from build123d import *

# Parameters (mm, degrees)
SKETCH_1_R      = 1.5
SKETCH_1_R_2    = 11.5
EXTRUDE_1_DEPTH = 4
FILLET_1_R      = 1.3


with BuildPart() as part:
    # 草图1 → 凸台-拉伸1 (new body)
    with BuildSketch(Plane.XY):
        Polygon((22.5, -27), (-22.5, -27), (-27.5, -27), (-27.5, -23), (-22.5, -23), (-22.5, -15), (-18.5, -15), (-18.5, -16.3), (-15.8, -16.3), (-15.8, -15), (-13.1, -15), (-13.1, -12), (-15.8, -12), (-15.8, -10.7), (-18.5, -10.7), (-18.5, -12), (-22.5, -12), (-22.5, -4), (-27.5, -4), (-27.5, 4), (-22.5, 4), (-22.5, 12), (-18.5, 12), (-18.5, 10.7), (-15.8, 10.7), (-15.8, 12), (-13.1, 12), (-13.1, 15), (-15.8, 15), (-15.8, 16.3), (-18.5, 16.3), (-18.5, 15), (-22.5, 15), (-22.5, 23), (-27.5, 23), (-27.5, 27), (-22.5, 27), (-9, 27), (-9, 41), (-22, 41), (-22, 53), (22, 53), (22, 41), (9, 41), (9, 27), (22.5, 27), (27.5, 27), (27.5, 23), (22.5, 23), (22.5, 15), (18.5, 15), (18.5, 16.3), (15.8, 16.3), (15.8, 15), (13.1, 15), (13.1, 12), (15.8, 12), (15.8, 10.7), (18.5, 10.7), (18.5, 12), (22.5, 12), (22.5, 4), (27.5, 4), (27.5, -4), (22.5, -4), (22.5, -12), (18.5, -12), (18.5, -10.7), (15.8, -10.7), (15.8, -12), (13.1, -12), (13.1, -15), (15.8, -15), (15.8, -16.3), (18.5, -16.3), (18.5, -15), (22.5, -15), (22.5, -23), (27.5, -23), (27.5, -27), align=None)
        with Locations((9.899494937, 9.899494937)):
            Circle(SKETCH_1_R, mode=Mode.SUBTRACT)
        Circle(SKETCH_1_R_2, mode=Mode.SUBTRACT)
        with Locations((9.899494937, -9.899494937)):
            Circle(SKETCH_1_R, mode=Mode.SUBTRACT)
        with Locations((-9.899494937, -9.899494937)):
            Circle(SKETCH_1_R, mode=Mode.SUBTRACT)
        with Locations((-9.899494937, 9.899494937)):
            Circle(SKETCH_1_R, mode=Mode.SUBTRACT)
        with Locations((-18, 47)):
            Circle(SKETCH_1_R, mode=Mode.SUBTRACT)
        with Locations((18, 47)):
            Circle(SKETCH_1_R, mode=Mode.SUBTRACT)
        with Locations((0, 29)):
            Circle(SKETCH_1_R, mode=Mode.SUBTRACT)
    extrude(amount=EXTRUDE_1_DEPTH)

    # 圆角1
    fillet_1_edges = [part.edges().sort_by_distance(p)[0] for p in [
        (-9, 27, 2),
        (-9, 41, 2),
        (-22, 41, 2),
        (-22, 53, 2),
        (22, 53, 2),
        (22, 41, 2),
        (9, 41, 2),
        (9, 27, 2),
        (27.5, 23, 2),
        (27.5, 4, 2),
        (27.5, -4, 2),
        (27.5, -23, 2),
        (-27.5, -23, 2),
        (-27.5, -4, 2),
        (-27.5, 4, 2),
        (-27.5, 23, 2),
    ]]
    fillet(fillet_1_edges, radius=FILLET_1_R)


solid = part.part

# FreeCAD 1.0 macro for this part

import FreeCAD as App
import Part
import Sketcher

V = App.Vector
Q = App.Units.Quantity


def edges_at(feature, points):
    """Names of the edges that pass closest to the given points."""
    edges = feature.Shape.Edges
    near = lambda p: min(range(len(edges)), key=lambda i: edges[i].distToShape(Part.Vertex(*p))[0])
    return sorted({f"Edge{near(p) + 1}" for p in points})

doc = App.newDocument("Part")
body = doc.addObject("PartDesign::Body", "Body")

sketch1 = doc.addObject("Sketcher::SketchObject", "Sketch")
body.addObject(sketch1)
sketch1.AttachmentSupport = (doc.XY_Plane, [""])
sketch1.MapMode = "FlatFace"
sketch1.addGeometry(Part.LineSegment(V(-27.5, -27, 0), V(27.5, -27, 0)), False)
sketch1.addGeometry(Part.LineSegment(V(27.5, -27, 0), V(27.5, -23, 0)), False)
sketch1.addGeometry(Part.LineSegment(V(27.5, -23, 0), V(22.5, -23, 0)), False)
sketch1.addGeometry(Part.LineSegment(V(22.5, -23, 0), V(22.5, -15, 0)), False)
sketch1.addGeometry(Part.LineSegment(V(22.5, -15, 0), V(18.5, -15, 0)), False)
sketch1.addGeometry(Part.LineSegment(V(18.5, -15, 0), V(18.5, -16.3, 0)), False)
sketch1.addGeometry(Part.LineSegment(V(18.5, -16.3, 0), V(15.8, -16.3, 0)), False)
sketch1.addGeometry(Part.LineSegment(V(15.8, -16.3, 0), V(15.8, -15, 0)), False)
sketch1.addGeometry(Part.LineSegment(V(15.8, -15, 0), V(13.1, -15, 0)), False)
sketch1.addGeometry(Part.LineSegment(V(13.1, -15, 0), V(13.1, -12, 0)), False)
sketch1.addGeometry(Part.LineSegment(V(13.1, -12, 0), V(15.8, -12, 0)), False)
sketch1.addGeometry(Part.LineSegment(V(15.8, -12, 0), V(15.8, -10.7, 0)), False)
sketch1.addGeometry(Part.LineSegment(V(15.8, -10.7, 0), V(18.5, -10.7, 0)), False)
sketch1.addGeometry(Part.LineSegment(V(18.5, -10.7, 0), V(18.5, -12, 0)), False)
sketch1.addGeometry(Part.LineSegment(V(18.5, -12, 0), V(22.5, -12, 0)), False)
sketch1.addGeometry(Part.LineSegment(V(22.5, -12, 0), V(22.5, -4, 0)), False)
sketch1.addGeometry(Part.LineSegment(V(22.5, -4, 0), V(27.5, -4, 0)), False)
sketch1.addGeometry(Part.LineSegment(V(27.5, -4, 0), V(27.5, 4, 0)), False)
sketch1.addGeometry(Part.LineSegment(V(27.5, 4, 0), V(22.5, 4, 0)), False)
sketch1.addGeometry(Part.LineSegment(V(22.5, 4, 0), V(22.5, 12, 0)), False)
sketch1.addGeometry(Part.LineSegment(V(22.5, 12, 0), V(18.5, 12, 0)), False)
sketch1.addGeometry(Part.LineSegment(V(18.5, 12, 0), V(18.5, 10.7, 0)), False)
sketch1.addGeometry(Part.LineSegment(V(18.5, 10.7, 0), V(15.8, 10.7, 0)), False)
sketch1.addGeometry(Part.LineSegment(V(15.8, 10.7, 0), V(15.8, 12, 0)), False)
sketch1.addGeometry(Part.LineSegment(V(15.8, 12, 0), V(13.1, 12, 0)), False)
sketch1.addGeometry(Part.LineSegment(V(13.1, 12, 0), V(13.1, 15, 0)), False)
sketch1.addGeometry(Part.LineSegment(V(13.1, 15, 0), V(15.8, 15, 0)), False)
sketch1.addGeometry(Part.LineSegment(V(15.8, 15, 0), V(15.8, 16.3, 0)), False)
sketch1.addGeometry(Part.LineSegment(V(15.8, 16.3, 0), V(18.5, 16.3, 0)), False)
sketch1.addGeometry(Part.LineSegment(V(18.5, 16.3, 0), V(18.5, 15, 0)), False)
sketch1.addGeometry(Part.LineSegment(V(18.5, 15, 0), V(22.5, 15, 0)), False)
sketch1.addGeometry(Part.LineSegment(V(22.5, 15, 0), V(22.5, 23, 0)), False)
sketch1.addGeometry(Part.LineSegment(V(22.5, 23, 0), V(27.5, 23, 0)), False)
sketch1.addGeometry(Part.LineSegment(V(27.5, 23, 0), V(27.5, 27, 0)), False)
sketch1.addGeometry(Part.LineSegment(V(27.5, 27, 0), V(9, 27, 0)), False)
sketch1.addGeometry(Part.LineSegment(V(9, 27, 0), V(9, 41, 0)), False)
sketch1.addGeometry(Part.LineSegment(V(9, 41, 0), V(22, 41, 0)), False)
sketch1.addGeometry(Part.LineSegment(V(22, 41, 0), V(22, 53, 0)), False)
sketch1.addGeometry(Part.LineSegment(V(22, 53, 0), V(-22, 53, 0)), False)
sketch1.addGeometry(Part.LineSegment(V(-22, 53, 0), V(-22, 41, 0)), False)
sketch1.addGeometry(Part.LineSegment(V(-22, 41, 0), V(-9, 41, 0)), False)
sketch1.addGeometry(Part.LineSegment(V(-9, 41, 0), V(-9, 27, 0)), False)
sketch1.addGeometry(Part.LineSegment(V(-9, 27, 0), V(-27.5, 27, 0)), False)
sketch1.addGeometry(Part.LineSegment(V(-27.5, 27, 0), V(-27.5, 23, 0)), False)
sketch1.addGeometry(Part.LineSegment(V(-27.5, 23, 0), V(-22.5, 23, 0)), False)
sketch1.addGeometry(Part.LineSegment(V(-22.5, 23, 0), V(-22.5, 15, 0)), False)
sketch1.addGeometry(Part.LineSegment(V(-22.5, 15, 0), V(-18.5, 15, 0)), False)
sketch1.addGeometry(Part.LineSegment(V(-18.5, 15, 0), V(-18.5, 16.3, 0)), False)
sketch1.addGeometry(Part.LineSegment(V(-18.5, 16.3, 0), V(-15.8, 16.3, 0)), False)
sketch1.addGeometry(Part.LineSegment(V(-15.8, 16.3, 0), V(-15.8, 15, 0)), False)
sketch1.addGeometry(Part.LineSegment(V(-15.8, 15, 0), V(-13.1, 15, 0)), False)
sketch1.addGeometry(Part.LineSegment(V(-13.1, 15, 0), V(-13.1, 12, 0)), False)
sketch1.addGeometry(Part.LineSegment(V(-13.1, 12, 0), V(-15.8, 12, 0)), False)
sketch1.addGeometry(Part.LineSegment(V(-15.8, 12, 0), V(-15.8, 10.7, 0)), False)
sketch1.addGeometry(Part.LineSegment(V(-15.8, 10.7, 0), V(-18.5, 10.7, 0)), False)
sketch1.addGeometry(Part.LineSegment(V(-18.5, 10.7, 0), V(-18.5, 12, 0)), False)
sketch1.addGeometry(Part.LineSegment(V(-18.5, 12, 0), V(-22.5, 12, 0)), False)
sketch1.addGeometry(Part.LineSegment(V(-22.5, 12, 0), V(-22.5, 4, 0)), False)
sketch1.addGeometry(Part.LineSegment(V(-22.5, 4, 0), V(-27.5, 4, 0)), False)
sketch1.addGeometry(Part.LineSegment(V(-27.5, 4, 0), V(-27.5, -4, 0)), False)
sketch1.addGeometry(Part.LineSegment(V(-27.5, -4, 0), V(-22.5, -4, 0)), False)
sketch1.addGeometry(Part.LineSegment(V(-22.5, -4, 0), V(-22.5, -12, 0)), False)
sketch1.addGeometry(Part.LineSegment(V(-22.5, -12, 0), V(-18.5, -12, 0)), False)
sketch1.addGeometry(Part.LineSegment(V(-18.5, -12, 0), V(-18.5, -10.7, 0)), False)
sketch1.addGeometry(Part.LineSegment(V(-18.5, -10.7, 0), V(-15.8, -10.7, 0)), False)
sketch1.addGeometry(Part.LineSegment(V(-15.8, -10.7, 0), V(-15.8, -12, 0)), False)
sketch1.addGeometry(Part.LineSegment(V(-15.8, -12, 0), V(-13.1, -12, 0)), False)
sketch1.addGeometry(Part.LineSegment(V(-13.1, -12, 0), V(-13.1, -15, 0)), False)
sketch1.addGeometry(Part.LineSegment(V(-13.1, -15, 0), V(-15.8, -15, 0)), False)
sketch1.addGeometry(Part.LineSegment(V(-15.8, -15, 0), V(-15.8, -16.3, 0)), False)
sketch1.addGeometry(Part.LineSegment(V(-15.8, -16.3, 0), V(-18.5, -16.3, 0)), False)
sketch1.addGeometry(Part.LineSegment(V(-18.5, -16.3, 0), V(-18.5, -15, 0)), False)
sketch1.addGeometry(Part.LineSegment(V(-18.5, -15, 0), V(-22.5, -15, 0)), False)
sketch1.addGeometry(Part.LineSegment(V(-22.5, -15, 0), V(-22.5, -23, 0)), False)
sketch1.addGeometry(Part.LineSegment(V(-22.5, -23, 0), V(-27.5, -23, 0)), False)
sketch1.addGeometry(Part.LineSegment(V(-27.5, -23, 0), V(-27.5, -27, 0)), False)
sketch1.addGeometry(Part.Circle(V(9.9, -9.9, 0), V(0, 0, 1), 1.5), False)
sketch1.addGeometry(Part.Circle(V(9.9, 9.9, 0), V(0, 0, 1), 1.5), False)
sketch1.addGeometry(Part.Circle(V(0, 0, 0), V(0, 0, 1), 11.5), False)
sketch1.addGeometry(Part.Circle(V(-9.9, -9.9, 0), V(0, 0, 1), 1.5), False)
sketch1.addGeometry(Part.Circle(V(-9.9, 9.9, 0), V(0, 0, 1), 1.5), False)
sketch1.addGeometry(Part.Circle(V(18, 47, 0), V(0, 0, 1), 1.5), False)
sketch1.addGeometry(Part.Circle(V(0, 29, 0), V(0, 0, 1), 1.5), False)
sketch1.addGeometry(Part.Circle(V(-18, 47, 0), V(0, 0, 1), 1.5), False)
sketch1.addConstraint(Sketcher.Constraint("Coincident", 0, 2, 1, 1))
sketch1.addConstraint(Sketcher.Constraint("Coincident", 1, 2, 2, 1))
sketch1.addConstraint(Sketcher.Constraint("Coincident", 2, 2, 3, 1))
sketch1.addConstraint(Sketcher.Constraint("Coincident", 3, 2, 4, 1))
sketch1.addConstraint(Sketcher.Constraint("Coincident", 4, 2, 5, 1))
sketch1.addConstraint(Sketcher.Constraint("Coincident", 5, 2, 6, 1))
sketch1.addConstraint(Sketcher.Constraint("Coincident", 6, 2, 7, 1))
sketch1.addConstraint(Sketcher.Constraint("Coincident", 7, 2, 8, 1))
sketch1.addConstraint(Sketcher.Constraint("Coincident", 8, 2, 9, 1))
sketch1.addConstraint(Sketcher.Constraint("Coincident", 9, 2, 10, 1))
sketch1.addConstraint(Sketcher.Constraint("Coincident", 10, 2, 11, 1))
sketch1.addConstraint(Sketcher.Constraint("Coincident", 11, 2, 12, 1))
sketch1.addConstraint(Sketcher.Constraint("Coincident", 12, 2, 13, 1))
sketch1.addConstraint(Sketcher.Constraint("Coincident", 13, 2, 14, 1))
sketch1.addConstraint(Sketcher.Constraint("Coincident", 14, 2, 15, 1))
sketch1.addConstraint(Sketcher.Constraint("Coincident", 15, 2, 16, 1))
sketch1.addConstraint(Sketcher.Constraint("Coincident", 16, 2, 17, 1))
sketch1.addConstraint(Sketcher.Constraint("Coincident", 17, 2, 18, 1))
sketch1.addConstraint(Sketcher.Constraint("Coincident", 18, 2, 19, 1))
sketch1.addConstraint(Sketcher.Constraint("Coincident", 19, 2, 20, 1))
sketch1.addConstraint(Sketcher.Constraint("Coincident", 20, 2, 21, 1))
sketch1.addConstraint(Sketcher.Constraint("Coincident", 21, 2, 22, 1))
sketch1.addConstraint(Sketcher.Constraint("Coincident", 22, 2, 23, 1))
sketch1.addConstraint(Sketcher.Constraint("Coincident", 23, 2, 24, 1))
sketch1.addConstraint(Sketcher.Constraint("Coincident", 24, 2, 25, 1))
sketch1.addConstraint(Sketcher.Constraint("Coincident", 25, 2, 26, 1))
sketch1.addConstraint(Sketcher.Constraint("Coincident", 26, 2, 27, 1))
sketch1.addConstraint(Sketcher.Constraint("Coincident", 27, 2, 28, 1))
sketch1.addConstraint(Sketcher.Constraint("Coincident", 28, 2, 29, 1))
sketch1.addConstraint(Sketcher.Constraint("Coincident", 29, 2, 30, 1))
sketch1.addConstraint(Sketcher.Constraint("Coincident", 30, 2, 31, 1))
sketch1.addConstraint(Sketcher.Constraint("Coincident", 31, 2, 32, 1))
sketch1.addConstraint(Sketcher.Constraint("Coincident", 32, 2, 33, 1))
sketch1.addConstraint(Sketcher.Constraint("Coincident", 33, 2, 34, 1))
sketch1.addConstraint(Sketcher.Constraint("Coincident", 34, 2, 35, 1))
sketch1.addConstraint(Sketcher.Constraint("Coincident", 35, 2, 36, 1))
sketch1.addConstraint(Sketcher.Constraint("Coincident", 36, 2, 37, 1))
sketch1.addConstraint(Sketcher.Constraint("Coincident", 37, 2, 38, 1))
sketch1.addConstraint(Sketcher.Constraint("Coincident", 38, 2, 39, 1))
sketch1.addConstraint(Sketcher.Constraint("Coincident", 39, 2, 40, 1))
sketch1.addConstraint(Sketcher.Constraint("Coincident", 40, 2, 41, 1))
sketch1.addConstraint(Sketcher.Constraint("Coincident", 41, 2, 42, 1))
sketch1.addConstraint(Sketcher.Constraint("Coincident", 42, 2, 43, 1))
sketch1.addConstraint(Sketcher.Constraint("Coincident", 43, 2, 44, 1))
sketch1.addConstraint(Sketcher.Constraint("Coincident", 44, 2, 45, 1))
sketch1.addConstraint(Sketcher.Constraint("Coincident", 45, 2, 46, 1))
sketch1.addConstraint(Sketcher.Constraint("Coincident", 46, 2, 47, 1))
sketch1.addConstraint(Sketcher.Constraint("Coincident", 47, 2, 48, 1))
sketch1.addConstraint(Sketcher.Constraint("Coincident", 48, 2, 49, 1))
sketch1.addConstraint(Sketcher.Constraint("Coincident", 49, 2, 50, 1))
sketch1.addConstraint(Sketcher.Constraint("Coincident", 50, 2, 51, 1))
sketch1.addConstraint(Sketcher.Constraint("Coincident", 51, 2, 52, 1))
sketch1.addConstraint(Sketcher.Constraint("Coincident", 52, 2, 53, 1))
sketch1.addConstraint(Sketcher.Constraint("Coincident", 53, 2, 54, 1))
sketch1.addConstraint(Sketcher.Constraint("Coincident", 54, 2, 55, 1))
sketch1.addConstraint(Sketcher.Constraint("Coincident", 55, 2, 56, 1))
sketch1.addConstraint(Sketcher.Constraint("Coincident", 56, 2, 57, 1))
sketch1.addConstraint(Sketcher.Constraint("Coincident", 57, 2, 58, 1))
sketch1.addConstraint(Sketcher.Constraint("Coincident", 58, 2, 59, 1))
sketch1.addConstraint(Sketcher.Constraint("Coincident", 59, 2, 60, 1))
sketch1.addConstraint(Sketcher.Constraint("Coincident", 60, 2, 61, 1))
sketch1.addConstraint(Sketcher.Constraint("Coincident", 61, 2, 62, 1))
sketch1.addConstraint(Sketcher.Constraint("Coincident", 62, 2, 63, 1))
sketch1.addConstraint(Sketcher.Constraint("Coincident", 63, 2, 64, 1))
sketch1.addConstraint(Sketcher.Constraint("Coincident", 64, 2, 65, 1))
sketch1.addConstraint(Sketcher.Constraint("Coincident", 65, 2, 66, 1))
sketch1.addConstraint(Sketcher.Constraint("Coincident", 66, 2, 67, 1))
sketch1.addConstraint(Sketcher.Constraint("Coincident", 67, 2, 68, 1))
sketch1.addConstraint(Sketcher.Constraint("Coincident", 68, 2, 69, 1))
sketch1.addConstraint(Sketcher.Constraint("Coincident", 69, 2, 70, 1))
sketch1.addConstraint(Sketcher.Constraint("Coincident", 70, 2, 71, 1))
sketch1.addConstraint(Sketcher.Constraint("Coincident", 71, 2, 72, 1))
sketch1.addConstraint(Sketcher.Constraint("Coincident", 72, 2, 73, 1))
sketch1.addConstraint(Sketcher.Constraint("Coincident", 73, 2, 74, 1))
sketch1.addConstraint(Sketcher.Constraint("Coincident", 74, 2, 75, 1))
sketch1.addConstraint(Sketcher.Constraint("Coincident", 75, 2, 0, 1))
sketch1.addConstraint(Sketcher.Constraint("Horizontal", 0))
sketch1.addConstraint(Sketcher.Constraint("Vertical", 1))
sketch1.addConstraint(Sketcher.Constraint("Horizontal", 2))
sketch1.addConstraint(Sketcher.Constraint("Vertical", 3))
sketch1.addConstraint(Sketcher.Constraint("Horizontal", 4))
sketch1.addConstraint(Sketcher.Constraint("Vertical", 5))
sketch1.addConstraint(Sketcher.Constraint("Horizontal", 6))
sketch1.addConstraint(Sketcher.Constraint("Vertical", 7))
sketch1.addConstraint(Sketcher.Constraint("Horizontal", 8))
sketch1.addConstraint(Sketcher.Constraint("Vertical", 9))
sketch1.addConstraint(Sketcher.Constraint("Horizontal", 10))
sketch1.addConstraint(Sketcher.Constraint("Vertical", 11))
sketch1.addConstraint(Sketcher.Constraint("Horizontal", 12))
sketch1.addConstraint(Sketcher.Constraint("Vertical", 13))
sketch1.addConstraint(Sketcher.Constraint("Horizontal", 14))
sketch1.addConstraint(Sketcher.Constraint("Vertical", 15))
sketch1.addConstraint(Sketcher.Constraint("Horizontal", 16))
sketch1.addConstraint(Sketcher.Constraint("Vertical", 17))
sketch1.addConstraint(Sketcher.Constraint("Horizontal", 18))
sketch1.addConstraint(Sketcher.Constraint("Vertical", 19))
sketch1.addConstraint(Sketcher.Constraint("Horizontal", 20))
sketch1.addConstraint(Sketcher.Constraint("Vertical", 21))
sketch1.addConstraint(Sketcher.Constraint("Horizontal", 22))
sketch1.addConstraint(Sketcher.Constraint("Vertical", 23))
sketch1.addConstraint(Sketcher.Constraint("Horizontal", 24))
sketch1.addConstraint(Sketcher.Constraint("Vertical", 25))
sketch1.addConstraint(Sketcher.Constraint("Horizontal", 26))
sketch1.addConstraint(Sketcher.Constraint("Vertical", 27))
sketch1.addConstraint(Sketcher.Constraint("Horizontal", 28))
sketch1.addConstraint(Sketcher.Constraint("Vertical", 29))
sketch1.addConstraint(Sketcher.Constraint("Horizontal", 30))
sketch1.addConstraint(Sketcher.Constraint("Vertical", 31))
sketch1.addConstraint(Sketcher.Constraint("Horizontal", 32))
sketch1.addConstraint(Sketcher.Constraint("Vertical", 33))
sketch1.addConstraint(Sketcher.Constraint("Horizontal", 34))
sketch1.addConstraint(Sketcher.Constraint("Vertical", 35))
sketch1.addConstraint(Sketcher.Constraint("Horizontal", 36))
sketch1.addConstraint(Sketcher.Constraint("Vertical", 37))
sketch1.addConstraint(Sketcher.Constraint("Horizontal", 38))
sketch1.addConstraint(Sketcher.Constraint("Vertical", 39))
sketch1.addConstraint(Sketcher.Constraint("Horizontal", 40))
sketch1.addConstraint(Sketcher.Constraint("Vertical", 41))
sketch1.addConstraint(Sketcher.Constraint("Horizontal", 42))
sketch1.addConstraint(Sketcher.Constraint("Vertical", 43))
sketch1.addConstraint(Sketcher.Constraint("Horizontal", 44))
sketch1.addConstraint(Sketcher.Constraint("Vertical", 45))
sketch1.addConstraint(Sketcher.Constraint("Horizontal", 46))
sketch1.addConstraint(Sketcher.Constraint("Vertical", 47))
sketch1.addConstraint(Sketcher.Constraint("Horizontal", 48))
sketch1.addConstraint(Sketcher.Constraint("Vertical", 49))
sketch1.addConstraint(Sketcher.Constraint("Horizontal", 50))
sketch1.addConstraint(Sketcher.Constraint("Vertical", 51))
sketch1.addConstraint(Sketcher.Constraint("Horizontal", 52))
sketch1.addConstraint(Sketcher.Constraint("Vertical", 53))
sketch1.addConstraint(Sketcher.Constraint("Horizontal", 54))
sketch1.addConstraint(Sketcher.Constraint("Vertical", 55))
sketch1.addConstraint(Sketcher.Constraint("Horizontal", 56))
sketch1.addConstraint(Sketcher.Constraint("Vertical", 57))
sketch1.addConstraint(Sketcher.Constraint("Horizontal", 58))
sketch1.addConstraint(Sketcher.Constraint("Vertical", 59))
sketch1.addConstraint(Sketcher.Constraint("Horizontal", 60))
sketch1.addConstraint(Sketcher.Constraint("Vertical", 61))
sketch1.addConstraint(Sketcher.Constraint("Horizontal", 62))
sketch1.addConstraint(Sketcher.Constraint("Vertical", 63))
sketch1.addConstraint(Sketcher.Constraint("Horizontal", 64))
sketch1.addConstraint(Sketcher.Constraint("Vertical", 65))
sketch1.addConstraint(Sketcher.Constraint("Horizontal", 66))
sketch1.addConstraint(Sketcher.Constraint("Vertical", 67))
sketch1.addConstraint(Sketcher.Constraint("Horizontal", 68))
sketch1.addConstraint(Sketcher.Constraint("Vertical", 69))
sketch1.addConstraint(Sketcher.Constraint("Horizontal", 70))
sketch1.addConstraint(Sketcher.Constraint("Vertical", 71))
sketch1.addConstraint(Sketcher.Constraint("Horizontal", 72))
sketch1.addConstraint(Sketcher.Constraint("Vertical", 73))
sketch1.addConstraint(Sketcher.Constraint("Horizontal", 74))
sketch1.addConstraint(Sketcher.Constraint("Vertical", 75))
sketch1.addConstraint(Sketcher.Constraint("Coincident", 78, 3, -1, 1))
sketch1.addConstraint(Sketcher.Constraint("Equal", 76, 77))
sketch1.addConstraint(Sketcher.Constraint("Equal", 77, 79))
sketch1.addConstraint(Sketcher.Constraint("Equal", 79, 80))
sketch1.addConstraint(Sketcher.Constraint("Equal", 80, 81))
sketch1.addConstraint(Sketcher.Constraint("Equal", 81, 82))
sketch1.addConstraint(Sketcher.Constraint("Equal", 82, 83))
sketch1.addConstraint(Sketcher.Constraint("Symmetric", 77, 3, 79, 3, -1, 1))
sketch1.addConstraint(Sketcher.Constraint("Symmetric", 76, 3, 80, 3, -1, 1))
sketch1.addConstraint(Sketcher.Constraint("Symmetric", 0, 2, 42, 2, -1, 1))
sketch1.addConstraint(Sketcher.Constraint("Symmetric", 2, 2, 44, 2, -1, 1))
sketch1.addConstraint(Sketcher.Constraint("Symmetric", 4, 2, 46, 2, -1, 1))
sketch1.addConstraint(Sketcher.Constraint("Symmetric", 6, 2, 48, 2, -1, 1))
sketch1.addConstraint(Sketcher.Constraint("Symmetric", 8, 2, 50, 2, -1, 1))
sketch1.addConstraint(Sketcher.Constraint("Symmetric", 10, 2, 52, 2, -1, 1))
sketch1.addConstraint(Sketcher.Constraint("Symmetric", 12, 2, 54, 2, -1, 1))
sketch1.addConstraint(Sketcher.Constraint("Symmetric", 14, 2, 56, 2, -1, 1))
sketch1.addConstraint(Sketcher.Constraint("Symmetric", 16, 2, 58, 2, -1, 1))
sketch1.addConstraint(Sketcher.Constraint("Symmetric", 18, 2, 60, 2, -1, 1))
sketch1.addConstraint(Sketcher.Constraint("Symmetric", 20, 2, 62, 2, -1, 1))
sketch1.addConstraint(Sketcher.Constraint("Symmetric", 22, 2, 64, 2, -1, 1))
sketch1.addConstraint(Sketcher.Constraint("Symmetric", 24, 2, 66, 2, -1, 1))
sketch1.addConstraint(Sketcher.Constraint("Symmetric", 26, 2, 68, 2, -1, 1))
sketch1.addConstraint(Sketcher.Constraint("Symmetric", 28, 2, 70, 2, -1, 1))
sketch1.addConstraint(Sketcher.Constraint("Symmetric", 30, 2, 72, 2, -1, 1))
sketch1.addConstraint(Sketcher.Constraint("Symmetric", 32, 2, 74, 2, -1, 1))
sketch1.addConstraint(Sketcher.Constraint("Symmetric", 76, 3, 79, 3, -2))
sketch1.addConstraint(Sketcher.Constraint("Symmetric", 81, 3, 83, 3, -2))
sketch1.addConstraint(Sketcher.Constraint("Symmetric", 36, 2, 39, 2, -2))
sketch1.addConstraint(Sketcher.Constraint("Symmetric", 34, 2, 41, 2, -2))
sketch1.addConstraint(Sketcher.Constraint("Symmetric", 32, 2, 43, 2, -2))
sketch1.addConstraint(Sketcher.Constraint("Symmetric", 30, 2, 45, 2, -2))
sketch1.addConstraint(Sketcher.Constraint("Symmetric", 28, 2, 47, 2, -2))
sketch1.addConstraint(Sketcher.Constraint("Symmetric", 26, 2, 49, 2, -2))
sketch1.addConstraint(Sketcher.Constraint("Symmetric", 24, 2, 51, 2, -2))
sketch1.addConstraint(Sketcher.Constraint("Symmetric", 22, 2, 53, 2, -2))
sketch1.addConstraint(Sketcher.Constraint("Symmetric", 20, 2, 55, 2, -2))
sketch1.addConstraint(Sketcher.Constraint("Symmetric", 18, 2, 57, 2, -2))
sketch1.addConstraint(Sketcher.Constraint("PointOnObject", 82, 3, -2))
sketch1.addConstraint(Sketcher.Constraint("Horizontal", 4, 2, 7, 2))
sketch1.addConstraint(Sketcher.Constraint("Horizontal", 10, 2, 13, 2))
sketch1.addConstraint(Sketcher.Constraint("Vertical", 7, 2, 10, 2))
sketch1.addConstraint(Sketcher.Constraint("Vertical", 5, 2, 12, 2))
sketch1.addConstraint(Sketcher.Constraint("Vertical", 3, 2, 14, 2))
sketch1.addConstraint(Sketcher.Constraint("Vertical", 1, 2, 16, 2))
sketch1.addConstraint(Sketcher.Constraint("Equal", 6, 8))
sketch1.addConstraint(Sketcher.Constraint("Equal", 72, 1))
sketch1.addConstraint(Sketcher.Constraint("Equal", 7, 11))
sketch1.addConstraint(Sketcher.Constraint("Equal", 3, 15))
sketch1.addConstraint(Sketcher.Constraint("Equal", 15, 17))
sketch1.addConstraint(Sketcher.Constraint("Diameter", 76, Q("3 mm")))
sketch1.addConstraint(Sketcher.Constraint("Diameter", 78, Q("23 mm")))
sketch1.addConstraint(Sketcher.Constraint("DistanceX", 0, 1, 0, 2, Q("55 mm")))
sketch1.addConstraint(Sketcher.Constraint("DistanceX", 2, 2, 2, 1, Q("5 mm")))
sketch1.addConstraint(Sketcher.Constraint("DistanceX", 4, 2, 4, 1, Q("4 mm")))
sketch1.addConstraint(Sketcher.Constraint("DistanceX", 36, 1, 36, 2, Q("13 mm")))
sketch1.addConstraint(Sketcher.Constraint("DistanceX", 38, 2, 38, 1, Q("44 mm")))
sketch1.addConstraint(Sketcher.Constraint("DistanceY", 3, 1, 3, 2, Q("8 mm")))
sketch1.addConstraint(Sketcher.Constraint("DistanceY", 9, 1, 9, 2, Q("3 mm")))
sketch1.addConstraint(Sketcher.Constraint("DistanceY", 35, 1, 35, 2, Q("14 mm")))
sketch1.addConstraint(Sketcher.Constraint("DistanceY", 37, 1, 37, 2, Q("12 mm")))
sketch1.addConstraint(Sketcher.Constraint("DistanceX", 6, 2, 6, 1, Q("2.7 mm")))
sketch1.addConstraint(Sketcher.Constraint("DistanceY", 5, 2, 5, 1, Q("1.3 mm")))
sketch1.addConstraint(Sketcher.Constraint("DistanceX", -1, 1, 81, 3, Q("18 mm")))
sketch1.addConstraint(Sketcher.Constraint("DistanceY", -1, 1, 81, 3, Q("47 mm")))
sketch1.addConstraint(Sketcher.Constraint("DistanceY", -1, 1, 82, 3, Q("29 mm")))
sketch1.addConstraint(Sketcher.Constraint("DistanceX", -1, 1, 76, 3, Q("9.899495 mm")))
sketch1.addConstraint(Sketcher.Constraint("DistanceY", 76, 3, -1, 1, Q("9.899495 mm")))
pad1 = doc.addObject("PartDesign::Pad", "Pad")
body.addObject(pad1)
pad1.Profile = sketch1
pad1.Length = 4
doc.recompute()

fillet = doc.addObject("PartDesign::Fillet", "Fillet")
body.addObject(fillet)
fillet.Base = (pad1, edges_at(pad1, [
    (-9, 27, 2),
    (-9, 41, 2),
    (-22, 41, 2),
    (-22, 53, 2),
    (22, 53, 2),
    (22, 41, 2),
    (9, 41, 2),
    (9, 27, 2),
    (27.5, 23, 2),
    (27.5, 4, 2),
    (27.5, -4, 2),
    (27.5, -23, 2),
    (-27.5, -23, 2),
    (-27.5, -4, 2),
    (-27.5, 4, 2),
    (-27.5, 23, 2),
]))
fillet.Radius = 1.3

doc.recompute()
